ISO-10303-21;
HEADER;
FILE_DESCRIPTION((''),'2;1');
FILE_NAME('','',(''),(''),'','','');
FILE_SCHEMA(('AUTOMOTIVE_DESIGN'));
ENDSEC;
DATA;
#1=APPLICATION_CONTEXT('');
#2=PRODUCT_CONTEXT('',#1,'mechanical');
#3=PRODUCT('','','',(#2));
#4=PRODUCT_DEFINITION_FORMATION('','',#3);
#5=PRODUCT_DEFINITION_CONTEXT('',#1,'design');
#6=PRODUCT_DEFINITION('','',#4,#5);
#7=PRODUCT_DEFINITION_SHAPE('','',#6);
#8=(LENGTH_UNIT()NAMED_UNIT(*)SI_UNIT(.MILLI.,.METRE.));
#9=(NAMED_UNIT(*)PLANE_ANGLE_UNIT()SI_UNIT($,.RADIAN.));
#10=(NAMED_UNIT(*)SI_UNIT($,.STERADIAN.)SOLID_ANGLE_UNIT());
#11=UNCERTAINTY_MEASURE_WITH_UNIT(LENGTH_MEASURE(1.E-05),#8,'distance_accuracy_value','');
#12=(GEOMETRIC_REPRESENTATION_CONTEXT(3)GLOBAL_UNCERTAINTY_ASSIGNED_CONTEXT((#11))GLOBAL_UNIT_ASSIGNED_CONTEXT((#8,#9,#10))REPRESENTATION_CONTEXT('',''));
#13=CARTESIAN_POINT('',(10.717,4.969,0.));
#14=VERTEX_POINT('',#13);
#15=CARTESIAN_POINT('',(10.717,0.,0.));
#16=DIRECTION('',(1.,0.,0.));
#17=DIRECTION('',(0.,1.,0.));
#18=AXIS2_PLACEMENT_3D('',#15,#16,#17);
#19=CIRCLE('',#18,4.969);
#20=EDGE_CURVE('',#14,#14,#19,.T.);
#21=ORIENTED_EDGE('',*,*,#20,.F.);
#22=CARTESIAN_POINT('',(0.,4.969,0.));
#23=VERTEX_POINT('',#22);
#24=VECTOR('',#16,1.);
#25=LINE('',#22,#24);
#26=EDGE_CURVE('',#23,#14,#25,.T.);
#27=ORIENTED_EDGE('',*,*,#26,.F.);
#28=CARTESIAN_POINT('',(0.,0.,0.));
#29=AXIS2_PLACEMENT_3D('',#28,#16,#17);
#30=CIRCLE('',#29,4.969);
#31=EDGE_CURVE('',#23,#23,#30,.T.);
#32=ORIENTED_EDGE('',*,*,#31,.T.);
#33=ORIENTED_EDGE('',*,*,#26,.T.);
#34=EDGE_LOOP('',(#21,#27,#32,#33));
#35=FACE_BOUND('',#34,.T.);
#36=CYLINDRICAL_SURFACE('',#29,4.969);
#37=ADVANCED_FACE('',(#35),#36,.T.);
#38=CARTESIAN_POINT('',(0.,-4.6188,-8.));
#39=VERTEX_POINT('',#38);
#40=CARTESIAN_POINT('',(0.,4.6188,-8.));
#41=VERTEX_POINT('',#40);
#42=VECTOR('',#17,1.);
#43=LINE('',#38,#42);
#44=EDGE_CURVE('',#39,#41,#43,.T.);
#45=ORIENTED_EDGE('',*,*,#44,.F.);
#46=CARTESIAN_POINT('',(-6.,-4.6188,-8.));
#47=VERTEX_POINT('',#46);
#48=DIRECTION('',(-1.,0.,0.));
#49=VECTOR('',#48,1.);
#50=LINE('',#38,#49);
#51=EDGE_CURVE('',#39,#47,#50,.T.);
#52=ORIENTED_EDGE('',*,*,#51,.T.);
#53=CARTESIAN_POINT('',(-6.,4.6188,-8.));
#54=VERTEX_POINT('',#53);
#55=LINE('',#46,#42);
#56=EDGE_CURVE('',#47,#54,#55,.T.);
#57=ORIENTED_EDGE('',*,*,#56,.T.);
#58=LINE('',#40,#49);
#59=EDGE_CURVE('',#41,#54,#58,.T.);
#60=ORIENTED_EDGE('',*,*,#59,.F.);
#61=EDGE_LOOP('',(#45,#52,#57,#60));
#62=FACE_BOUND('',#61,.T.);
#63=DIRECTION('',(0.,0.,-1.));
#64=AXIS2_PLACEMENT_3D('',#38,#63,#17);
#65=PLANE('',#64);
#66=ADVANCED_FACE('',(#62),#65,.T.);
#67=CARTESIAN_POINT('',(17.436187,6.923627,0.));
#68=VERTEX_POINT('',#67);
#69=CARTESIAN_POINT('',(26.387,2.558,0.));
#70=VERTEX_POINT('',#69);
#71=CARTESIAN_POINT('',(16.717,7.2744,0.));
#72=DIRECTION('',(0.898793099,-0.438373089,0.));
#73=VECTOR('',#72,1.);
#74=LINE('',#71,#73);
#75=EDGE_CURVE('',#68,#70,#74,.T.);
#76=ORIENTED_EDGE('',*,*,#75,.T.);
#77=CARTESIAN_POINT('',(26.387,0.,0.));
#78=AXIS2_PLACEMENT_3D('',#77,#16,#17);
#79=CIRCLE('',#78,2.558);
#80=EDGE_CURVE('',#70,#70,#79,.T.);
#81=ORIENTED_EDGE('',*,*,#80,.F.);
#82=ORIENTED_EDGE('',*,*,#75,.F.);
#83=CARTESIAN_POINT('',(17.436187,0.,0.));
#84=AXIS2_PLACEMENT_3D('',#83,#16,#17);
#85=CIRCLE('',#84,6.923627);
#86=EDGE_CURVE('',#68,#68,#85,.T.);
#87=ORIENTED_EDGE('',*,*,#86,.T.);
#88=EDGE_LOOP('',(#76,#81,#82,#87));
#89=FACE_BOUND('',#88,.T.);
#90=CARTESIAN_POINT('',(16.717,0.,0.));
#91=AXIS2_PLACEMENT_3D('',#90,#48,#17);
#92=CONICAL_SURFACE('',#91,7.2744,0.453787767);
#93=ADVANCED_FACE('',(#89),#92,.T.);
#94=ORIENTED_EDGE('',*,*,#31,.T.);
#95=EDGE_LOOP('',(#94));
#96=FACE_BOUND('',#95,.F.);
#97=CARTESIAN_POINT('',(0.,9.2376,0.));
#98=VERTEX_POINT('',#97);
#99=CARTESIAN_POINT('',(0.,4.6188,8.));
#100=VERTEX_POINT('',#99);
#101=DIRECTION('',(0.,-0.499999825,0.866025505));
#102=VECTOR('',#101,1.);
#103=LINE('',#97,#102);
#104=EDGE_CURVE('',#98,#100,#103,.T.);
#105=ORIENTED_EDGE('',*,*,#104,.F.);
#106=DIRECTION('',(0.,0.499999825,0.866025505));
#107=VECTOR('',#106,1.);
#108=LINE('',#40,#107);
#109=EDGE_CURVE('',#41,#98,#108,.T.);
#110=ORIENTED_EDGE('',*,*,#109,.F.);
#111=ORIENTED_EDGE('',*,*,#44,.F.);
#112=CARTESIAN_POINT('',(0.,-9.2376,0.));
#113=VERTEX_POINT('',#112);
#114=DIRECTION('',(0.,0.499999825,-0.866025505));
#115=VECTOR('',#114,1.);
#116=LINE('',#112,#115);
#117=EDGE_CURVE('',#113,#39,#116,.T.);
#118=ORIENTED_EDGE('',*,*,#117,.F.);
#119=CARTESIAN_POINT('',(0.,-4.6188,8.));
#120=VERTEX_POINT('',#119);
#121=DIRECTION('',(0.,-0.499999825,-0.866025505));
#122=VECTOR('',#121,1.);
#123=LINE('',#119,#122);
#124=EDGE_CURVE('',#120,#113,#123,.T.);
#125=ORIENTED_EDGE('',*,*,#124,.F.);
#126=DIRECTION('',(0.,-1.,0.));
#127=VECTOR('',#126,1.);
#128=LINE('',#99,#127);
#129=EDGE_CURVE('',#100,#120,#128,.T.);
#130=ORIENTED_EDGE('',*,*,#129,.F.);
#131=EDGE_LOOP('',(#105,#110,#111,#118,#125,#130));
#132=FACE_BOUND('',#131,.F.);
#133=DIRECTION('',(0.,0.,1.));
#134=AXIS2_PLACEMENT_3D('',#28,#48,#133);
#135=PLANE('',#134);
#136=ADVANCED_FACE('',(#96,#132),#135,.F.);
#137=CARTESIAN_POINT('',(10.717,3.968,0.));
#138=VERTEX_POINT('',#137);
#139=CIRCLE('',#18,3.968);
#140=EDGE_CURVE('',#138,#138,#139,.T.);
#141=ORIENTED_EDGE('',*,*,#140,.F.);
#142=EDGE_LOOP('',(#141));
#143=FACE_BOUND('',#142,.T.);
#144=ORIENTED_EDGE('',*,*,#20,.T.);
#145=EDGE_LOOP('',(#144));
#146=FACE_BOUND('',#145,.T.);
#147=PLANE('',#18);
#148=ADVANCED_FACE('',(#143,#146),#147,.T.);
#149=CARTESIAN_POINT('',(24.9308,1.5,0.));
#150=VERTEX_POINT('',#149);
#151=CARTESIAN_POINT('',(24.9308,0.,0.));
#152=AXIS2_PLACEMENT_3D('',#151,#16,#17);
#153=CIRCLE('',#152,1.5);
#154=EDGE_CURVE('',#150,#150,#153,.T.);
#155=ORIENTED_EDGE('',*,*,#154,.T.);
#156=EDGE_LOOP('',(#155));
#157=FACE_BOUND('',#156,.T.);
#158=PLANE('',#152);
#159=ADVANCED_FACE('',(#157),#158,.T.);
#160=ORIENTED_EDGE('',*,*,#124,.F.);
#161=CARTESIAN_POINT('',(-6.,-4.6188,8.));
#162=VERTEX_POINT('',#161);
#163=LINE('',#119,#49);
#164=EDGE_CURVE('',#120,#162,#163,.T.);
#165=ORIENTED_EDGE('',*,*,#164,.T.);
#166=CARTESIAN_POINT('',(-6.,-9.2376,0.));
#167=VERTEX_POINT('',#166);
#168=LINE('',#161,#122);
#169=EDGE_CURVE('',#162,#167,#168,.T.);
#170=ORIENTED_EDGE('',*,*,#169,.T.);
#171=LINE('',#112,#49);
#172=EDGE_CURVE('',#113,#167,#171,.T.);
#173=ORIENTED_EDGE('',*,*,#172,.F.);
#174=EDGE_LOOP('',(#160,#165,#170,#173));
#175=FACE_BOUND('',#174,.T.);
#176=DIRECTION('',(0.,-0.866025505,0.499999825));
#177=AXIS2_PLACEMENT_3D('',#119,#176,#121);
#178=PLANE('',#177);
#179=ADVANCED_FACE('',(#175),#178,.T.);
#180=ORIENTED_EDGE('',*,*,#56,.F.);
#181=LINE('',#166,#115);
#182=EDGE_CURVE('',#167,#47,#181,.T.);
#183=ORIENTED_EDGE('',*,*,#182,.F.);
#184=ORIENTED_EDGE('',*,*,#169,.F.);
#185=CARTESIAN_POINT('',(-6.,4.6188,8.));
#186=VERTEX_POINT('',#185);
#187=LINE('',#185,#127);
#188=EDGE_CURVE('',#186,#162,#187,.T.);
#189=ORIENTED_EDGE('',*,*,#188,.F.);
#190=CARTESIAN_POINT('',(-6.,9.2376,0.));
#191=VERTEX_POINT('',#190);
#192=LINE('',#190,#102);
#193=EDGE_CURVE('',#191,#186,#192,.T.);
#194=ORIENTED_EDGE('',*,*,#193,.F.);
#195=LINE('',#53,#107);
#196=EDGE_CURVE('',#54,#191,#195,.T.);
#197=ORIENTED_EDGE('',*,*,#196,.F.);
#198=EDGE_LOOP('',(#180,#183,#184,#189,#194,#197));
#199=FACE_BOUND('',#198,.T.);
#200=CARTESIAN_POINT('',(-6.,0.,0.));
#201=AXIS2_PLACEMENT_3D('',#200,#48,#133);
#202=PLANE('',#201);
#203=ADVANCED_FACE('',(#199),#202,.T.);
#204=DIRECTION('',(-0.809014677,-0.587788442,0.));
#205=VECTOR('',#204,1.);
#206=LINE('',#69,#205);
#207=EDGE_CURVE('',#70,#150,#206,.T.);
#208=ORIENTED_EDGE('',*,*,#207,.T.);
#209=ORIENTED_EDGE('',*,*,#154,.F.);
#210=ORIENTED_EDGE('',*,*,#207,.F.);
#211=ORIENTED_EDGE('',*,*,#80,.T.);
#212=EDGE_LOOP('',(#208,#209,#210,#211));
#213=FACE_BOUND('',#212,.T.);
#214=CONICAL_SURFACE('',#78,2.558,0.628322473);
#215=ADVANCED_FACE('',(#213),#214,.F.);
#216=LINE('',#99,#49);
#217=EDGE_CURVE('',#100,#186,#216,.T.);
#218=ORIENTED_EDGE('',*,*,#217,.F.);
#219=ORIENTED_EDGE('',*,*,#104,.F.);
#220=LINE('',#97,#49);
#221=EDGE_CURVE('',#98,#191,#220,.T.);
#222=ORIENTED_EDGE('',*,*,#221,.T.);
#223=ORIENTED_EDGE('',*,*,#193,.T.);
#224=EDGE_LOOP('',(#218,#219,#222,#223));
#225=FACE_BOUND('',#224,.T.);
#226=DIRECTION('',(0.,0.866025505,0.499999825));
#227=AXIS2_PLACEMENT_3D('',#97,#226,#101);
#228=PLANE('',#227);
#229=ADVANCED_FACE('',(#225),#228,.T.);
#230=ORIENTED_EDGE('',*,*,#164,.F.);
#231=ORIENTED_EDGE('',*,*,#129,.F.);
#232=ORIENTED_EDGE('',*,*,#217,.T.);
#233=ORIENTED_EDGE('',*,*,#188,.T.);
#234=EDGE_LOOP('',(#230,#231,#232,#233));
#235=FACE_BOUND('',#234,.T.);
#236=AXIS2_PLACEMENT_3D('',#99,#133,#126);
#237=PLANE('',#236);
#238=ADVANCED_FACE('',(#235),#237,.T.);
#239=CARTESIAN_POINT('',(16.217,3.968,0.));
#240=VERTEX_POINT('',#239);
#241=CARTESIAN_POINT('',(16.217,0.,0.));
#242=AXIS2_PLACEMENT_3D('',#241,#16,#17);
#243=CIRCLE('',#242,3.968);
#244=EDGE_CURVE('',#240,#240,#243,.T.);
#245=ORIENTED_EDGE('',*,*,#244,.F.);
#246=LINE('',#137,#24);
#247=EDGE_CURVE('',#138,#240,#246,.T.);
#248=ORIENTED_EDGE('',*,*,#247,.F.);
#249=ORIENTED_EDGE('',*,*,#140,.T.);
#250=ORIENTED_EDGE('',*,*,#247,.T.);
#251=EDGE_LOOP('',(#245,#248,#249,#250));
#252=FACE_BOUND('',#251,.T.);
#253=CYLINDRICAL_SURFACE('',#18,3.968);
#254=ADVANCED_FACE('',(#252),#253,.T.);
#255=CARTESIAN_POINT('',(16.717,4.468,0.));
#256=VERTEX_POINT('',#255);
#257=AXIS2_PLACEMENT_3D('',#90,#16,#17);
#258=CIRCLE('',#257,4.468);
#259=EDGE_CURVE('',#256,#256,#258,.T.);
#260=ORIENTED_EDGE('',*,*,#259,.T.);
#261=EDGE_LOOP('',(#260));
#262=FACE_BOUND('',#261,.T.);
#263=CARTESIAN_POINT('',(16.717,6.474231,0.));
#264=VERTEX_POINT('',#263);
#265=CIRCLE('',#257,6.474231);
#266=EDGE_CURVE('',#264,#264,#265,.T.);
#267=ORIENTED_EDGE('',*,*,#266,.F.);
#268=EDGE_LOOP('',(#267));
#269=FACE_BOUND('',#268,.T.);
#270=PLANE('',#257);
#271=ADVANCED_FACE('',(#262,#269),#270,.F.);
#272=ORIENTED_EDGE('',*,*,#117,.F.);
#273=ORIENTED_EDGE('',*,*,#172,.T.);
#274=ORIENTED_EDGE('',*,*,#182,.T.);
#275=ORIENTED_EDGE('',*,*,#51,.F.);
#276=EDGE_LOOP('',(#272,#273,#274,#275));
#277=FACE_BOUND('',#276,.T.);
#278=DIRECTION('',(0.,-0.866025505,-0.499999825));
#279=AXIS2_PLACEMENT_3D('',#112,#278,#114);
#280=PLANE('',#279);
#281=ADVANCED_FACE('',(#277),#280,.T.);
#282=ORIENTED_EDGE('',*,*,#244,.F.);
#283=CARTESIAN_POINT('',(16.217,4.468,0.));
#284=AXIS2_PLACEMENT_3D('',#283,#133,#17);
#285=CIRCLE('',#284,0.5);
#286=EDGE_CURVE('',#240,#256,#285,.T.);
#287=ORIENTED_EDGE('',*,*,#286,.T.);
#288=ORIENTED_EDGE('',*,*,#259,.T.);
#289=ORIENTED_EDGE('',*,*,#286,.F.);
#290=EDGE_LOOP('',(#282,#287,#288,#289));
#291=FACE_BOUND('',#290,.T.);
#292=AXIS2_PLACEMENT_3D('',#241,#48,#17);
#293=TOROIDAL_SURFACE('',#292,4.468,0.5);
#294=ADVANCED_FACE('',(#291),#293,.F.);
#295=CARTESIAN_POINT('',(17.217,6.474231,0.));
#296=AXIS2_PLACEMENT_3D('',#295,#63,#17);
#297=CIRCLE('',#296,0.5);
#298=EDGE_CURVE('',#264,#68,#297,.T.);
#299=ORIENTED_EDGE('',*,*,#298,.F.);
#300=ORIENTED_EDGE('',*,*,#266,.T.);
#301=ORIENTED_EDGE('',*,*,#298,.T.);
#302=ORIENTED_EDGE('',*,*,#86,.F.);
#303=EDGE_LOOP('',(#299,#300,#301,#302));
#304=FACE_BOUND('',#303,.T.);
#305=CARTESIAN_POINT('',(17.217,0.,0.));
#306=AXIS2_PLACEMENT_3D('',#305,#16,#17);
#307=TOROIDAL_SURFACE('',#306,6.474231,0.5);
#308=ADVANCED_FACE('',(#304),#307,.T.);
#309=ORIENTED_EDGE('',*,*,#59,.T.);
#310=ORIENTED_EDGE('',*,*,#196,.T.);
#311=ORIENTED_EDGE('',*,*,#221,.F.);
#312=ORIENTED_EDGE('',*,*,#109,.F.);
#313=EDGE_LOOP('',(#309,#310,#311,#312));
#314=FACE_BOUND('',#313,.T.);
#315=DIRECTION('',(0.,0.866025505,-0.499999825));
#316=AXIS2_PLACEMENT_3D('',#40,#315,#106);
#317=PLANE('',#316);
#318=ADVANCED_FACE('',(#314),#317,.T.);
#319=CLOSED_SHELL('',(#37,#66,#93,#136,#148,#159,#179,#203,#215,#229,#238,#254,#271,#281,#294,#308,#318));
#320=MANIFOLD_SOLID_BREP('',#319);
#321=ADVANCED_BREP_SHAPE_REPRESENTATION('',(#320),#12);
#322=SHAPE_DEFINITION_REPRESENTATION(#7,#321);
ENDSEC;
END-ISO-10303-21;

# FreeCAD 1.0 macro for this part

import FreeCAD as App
import Part
import Sketcher
from FreeCAD import Vector
Q = App.Units.Quantity


def edges_at(feature, points):
    """Names of the edges that pass closest to the given points."""
    edges = feature.Shape.Edges
    near = lambda p: min(range(len(edges)), key=lambda i: edges[i].distToShape(Part.Vertex(*p))[0])
    return sorted({f"Edge{near(p) + 1}" for p in points})

doc = App.newDocument("Part")
params = doc.addObject("Spreadsheet::Sheet", "Params")
for row, (alias, value) in enumerate([
    ("sketch1_width", "6 mm"),
    ("sketch1_height", "1.5 mm"),
    ("sketch1_length", "1.8 mm"),
    ("revolution_angle", "360 deg"),
    ("pad1_length", "6 mm"),
    ("fillet_radius", "0.5 mm"),
], start=1):
    params.set(f"A{row}", alias)
    params.set(f"B{row}", "=" + value)
    params.setAlias(f"B{row}", alias)

body = doc.addObject("PartDesign::Body", "Body")

# Sketch on XY plane
sketch1 = body.newObject("Sketcher::SketchObject", "Sketch")
sketch1.AttachmentSupport = (doc.getObject("XY_Plane"), [""])
sketch1.MapMode = "FlatFace"
sketch1.addGeometry(Part.LineSegment(Vector(0, 5, 0), Vector(0, 0, 0)), False)
sketch1.addGeometry(Part.LineSegment(Vector(0, 0, 0), Vector(24.9, 0, 0)), False)
sketch1.addGeometry(Part.LineSegment(Vector(24.9, 0, 0), Vector(24.9, 1.5, 0)), False)
sketch1.addGeometry(Part.LineSegment(Vector(24.9, 1.5, 0), Vector(26.4, 2.6, 0)), False)
sketch1.addGeometry(Part.LineSegment(Vector(26.4, 2.6, 0), Vector(16.7, 7.3, 0)), False)
sketch1.addGeometry(Part.LineSegment(Vector(16.7, 7.3, 0), Vector(16.7, 4, 0)), False)
sketch1.addGeometry(Part.LineSegment(Vector(16.7, 4, 0), Vector(10.7, 4, 0)), False)
sketch1.addGeometry(Part.LineSegment(Vector(10.7, 4, 0), Vector(10.7, 5, 0)), False)
sketch1.addGeometry(Part.LineSegment(Vector(10.7, 5, 0), Vector(0, 5, 0)), False)
sketch1.addConstraint(Sketcher.Constraint("Coincident", 0, 2, 1, 1))
sketch1.addConstraint(Sketcher.Constraint("Coincident", 1, 2, 2, 1))
sketch1.addConstraint(Sketcher.Constraint("Coincident", 2, 2, 3, 1))
sketch1.addConstraint(Sketcher.Constraint("Coincident", 3, 2, 4, 1))
sketch1.addConstraint(Sketcher.Constraint("Coincident", 4, 2, 5, 1))
sketch1.addConstraint(Sketcher.Constraint("Coincident", 5, 2, 6, 1))
sketch1.addConstraint(Sketcher.Constraint("Coincident", 6, 2, 7, 1))
sketch1.addConstraint(Sketcher.Constraint("Coincident", 7, 2, 8, 1))
sketch1.addConstraint(Sketcher.Constraint("Coincident", 8, 2, 0, 1))
sketch1.addConstraint(Sketcher.Constraint("Vertical", 0))
sketch1.addConstraint(Sketcher.Constraint("Horizontal", 1))
sketch1.addConstraint(Sketcher.Constraint("Vertical", 2))
sketch1.addConstraint(Sketcher.Constraint("Vertical", 5))
sketch1.addConstraint(Sketcher.Constraint("Horizontal", 6))
sketch1.addConstraint(Sketcher.Constraint("Vertical", 7))
sketch1.addConstraint(Sketcher.Constraint("Horizontal", 8))
sketch1.addConstraint(Sketcher.Constraint("Coincident", 0, 2, -1, 1))
sketch1.addConstraint(Sketcher.Constraint("DistanceX", 6, 2, 6, 1, Q("6 mm")))
sketch1.addConstraint(Sketcher.Constraint("Angle", 3, Q("36.0002 deg")))
sketch1.addConstraint(Sketcher.Constraint("DistanceX", 8, 2, 8, 1, Q("10.717 mm")))
sketch1.addConstraint(Sketcher.Constraint("Angle", 4, Q("153.9999 deg")))
sketch1.addConstraint(Sketcher.Constraint("DistanceX", 4, 2, 3, 2, Q("9.67 mm")))
sketch1.addConstraint(Sketcher.Constraint("DistanceY", 2, 1, 2, 2, Q("1.5 mm")))
sketch1.addConstraint(Sketcher.Constraint("Distance", 3, Q("1.8 mm")))
sketch1.addConstraint(Sketcher.Constraint("DistanceY", 0, 2, 0, 1, Q("4.969 mm")))
sketch1.addConstraint(Sketcher.Constraint("DistanceY", 7, 1, 7, 2, Q("1.001 mm")))
sketch1.setExpression("Constraints[17]", "Params.sketch1_width")
sketch1.setExpression("Constraints[22]", "Params.sketch1_height")
sketch1.setExpression("Constraints[23]", "Params.sketch1_length")
revolution = body.newObject("PartDesign::Revolution", "Revolution")
revolution.Profile = sketch1
revolution.ReferenceAxis = (sketch1, ["H_Axis"])
revolution.setExpression("Angle", "Params.revolution_angle")

# Sketch on YZ plane
sketch2 = body.newObject("Sketcher::SketchObject", "Sketch001")
sketch2.AttachmentSupport = (doc.getObject("YZ_Plane"), [""])
sketch2.MapMode = "FlatFace"
sketch2.addGeometry(Part.LineSegment(Vector(5, 8, 0), Vector(9, 0, 0)), False)
sketch2.addGeometry(Part.LineSegment(Vector(9, 0, 0), Vector(5, -8, 0)), False)
sketch2.addGeometry(Part.LineSegment(Vector(5, -8, 0), Vector(-5, -8, 0)), False)
sketch2.addGeometry(Part.LineSegment(Vector(-5, -8, 0), Vector(-9, 0, 0)), False)
sketch2.addGeometry(Part.LineSegment(Vector(-9, 0, 0), Vector(-5, 8, 0)), False)
sketch2.addGeometry(Part.LineSegment(Vector(-5, 8, 0), Vector(5, 8, 0)), False)
sketch2.addConstraint(Sketcher.Constraint("Coincident", 0, 2, 1, 1))
sketch2.addConstraint(Sketcher.Constraint("Coincident", 1, 2, 2, 1))
sketch2.addConstraint(Sketcher.Constraint("Coincident", 2, 2, 3, 1))
sketch2.addConstraint(Sketcher.Constraint("Coincident", 3, 2, 4, 1))
sketch2.addConstraint(Sketcher.Constraint("Coincident", 4, 2, 5, 1))
sketch2.addConstraint(Sketcher.Constraint("Coincident", 5, 2, 0, 1))
sketch2.addConstraint(Sketcher.Constraint("Horizontal", 2))
sketch2.addConstraint(Sketcher.Constraint("Horizontal", 5))
sketch2.addConstraint(Sketcher.Constraint("Symmetric", 0, 2, 3, 2, -1, 1))
sketch2.addConstraint(Sketcher.Constraint("Symmetric", 1, 2, 4, 2, -1, 1))
sketch2.addConstraint(Sketcher.Constraint("PointOnObject", 0, 2, -1))
sketch2.addConstraint(Sketcher.Constraint("Parallel", 0, 3))
sketch2.addConstraint(Sketcher.Constraint("Vertical", 2, 2, 4, 2))
sketch2.addConstraint(Sketcher.Constraint("DistanceY", 2, 2, 4, 2, Q("16 mm")))
sketch2.addConstraint(Sketcher.Constraint("Angle", 0, Q("-60 deg")))
sketch2.addConstraint(Sketcher.Constraint("DistanceX", 2, 2, 2, 1, Q("9.2376 mm")))
pad1 = body.newObject("PartDesign::Pad", "Pad")
pad1.Profile = sketch2
pad1.setExpression("Length", "Params.pad1_length")
pad1.Reversed = True
doc.recompute()

fillet = body.newObject("PartDesign::Fillet", "Fillet")
fillet.Base = (pad1, edges_at(pad1, [(16.717, -3.968, 0), (16.717, -7.274, 0)]))
fillet.setExpression("Radius", "Params.fillet_radius")

doc.recompute()
